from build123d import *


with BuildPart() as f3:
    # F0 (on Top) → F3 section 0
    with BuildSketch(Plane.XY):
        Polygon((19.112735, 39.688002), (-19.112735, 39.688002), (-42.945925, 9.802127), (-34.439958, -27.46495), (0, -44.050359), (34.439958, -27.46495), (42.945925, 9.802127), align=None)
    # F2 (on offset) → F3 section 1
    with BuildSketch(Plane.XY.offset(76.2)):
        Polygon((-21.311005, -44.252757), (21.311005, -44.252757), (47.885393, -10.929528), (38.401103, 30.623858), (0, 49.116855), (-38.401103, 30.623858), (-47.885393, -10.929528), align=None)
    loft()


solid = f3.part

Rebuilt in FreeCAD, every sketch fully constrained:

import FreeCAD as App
import Part
import Sketcher
from FreeCAD import Vector


def add_polygon(sketch, points):
    """Adds a closed chain of lines whose ends are joined by coincident constraints."""
    first, n = sketch.GeometryCount, len(points)
    for a, b in zip(points, points[1:] + points[:1]):
        sketch.addGeometry(Part.LineSegment(App.Vector(*a, 0), App.Vector(*b, 0)), False)
    for i in range(n):
        sketch.addConstraint(Sketcher.Constraint("Coincident", first + i, 2, first + (i + 1) % n, 1))

doc = App.newDocument("Part")
body = doc.addObject("PartDesign::Body", "Body")

# Sketch on XY plane
sketch1 = body.newObject("Sketcher::SketchObject", "Sketch")
sketch1.AttachmentSupport = (doc.getObject("XY_Plane"), [""])
sketch1.MapMode = "FlatFace"
add_polygon(sketch1, [(19, 40), (-19, 40), (-43, 10), (-34, -27), (0, -44), (34, -27), (43, 10)])  # lines 0-6
sketch1.addConstraint([
    Sketcher.Constraint("Horizontal", 0),
    Sketcher.Constraint("Symmetric", 2, 2, 4, 2, -2),
    Sketcher.Constraint("Symmetric", 1, 2, 5, 2, -2),
    Sketcher.Constraint("PointOnObject", 3, 2, -2),
    Sketcher.Constraint("Equal", 1, 2),
    Sketcher.Constraint("Equal", 2, 3),
    Sketcher.Constraint("Equal", 5, 6),
    Sketcher.Constraint("DistanceY", -1, 1, 0, 2, 39.688002),
    Sketcher.Constraint("DistanceX", 0, 2, 0, 1, 38.22547),
    Sketcher.Constraint("Distance", 1, 38.225469),
    Sketcher.Constraint("DistanceY", 2, 2, -1, 1, 27.46495),
    Sketcher.Constraint("DistanceY", 3, 2, -1, 1, 44.050359),
])

# Sketch on XY plane
sketch2 = body.newObject("Sketcher::SketchObject", "Sketch001")
sketch2.AttachmentSupport = (doc.getObject("XY_Plane"), [""])
sketch2.MapMode = "FlatFace"
sketch2.AttachmentOffset = App.Placement(Vector(0, 0, 76.2), App.Rotation())
add_polygon(sketch2, [(-21, -44), (21, -44), (48, -11), (38, 31), (0, 49), (-38, 31), (-48, -11)])  # lines 0-6
sketch2.addConstraint([
    Sketcher.Constraint("Horizontal", 0),
    Sketcher.Constraint("Symmetric", 2, 2, 4, 2, -2),
    Sketcher.Constraint("Symmetric", 1, 2, 5, 2, -2),
    Sketcher.Constraint("PointOnObject", 3, 2, -2),
    Sketcher.Constraint("Equal", 1, 2),
    Sketcher.Constraint("Equal", 2, 3),
    Sketcher.Constraint("Equal", 5, 6),
    Sketcher.Constraint("DistanceX", 0, 1, 0, 2, 42.62201),
    Sketcher.Constraint("DistanceX", 5, 2, 0, 2, 69.196398),
    Sketcher.Constraint("Distance", 1, 42.622009),
    Sketcher.Constraint("DistanceX", 2, 2, 1, 2, 9.48429),
    Sketcher.Constraint("DistanceY", 0, 2, -1, 1, 44.252757),
])

additiveloft = body.newObject("PartDesign::AdditiveLoft", "AdditiveLoft")
additiveloft.Profile = sketch1
additiveloft.Sections = [sketch2]

doc.recompute()
